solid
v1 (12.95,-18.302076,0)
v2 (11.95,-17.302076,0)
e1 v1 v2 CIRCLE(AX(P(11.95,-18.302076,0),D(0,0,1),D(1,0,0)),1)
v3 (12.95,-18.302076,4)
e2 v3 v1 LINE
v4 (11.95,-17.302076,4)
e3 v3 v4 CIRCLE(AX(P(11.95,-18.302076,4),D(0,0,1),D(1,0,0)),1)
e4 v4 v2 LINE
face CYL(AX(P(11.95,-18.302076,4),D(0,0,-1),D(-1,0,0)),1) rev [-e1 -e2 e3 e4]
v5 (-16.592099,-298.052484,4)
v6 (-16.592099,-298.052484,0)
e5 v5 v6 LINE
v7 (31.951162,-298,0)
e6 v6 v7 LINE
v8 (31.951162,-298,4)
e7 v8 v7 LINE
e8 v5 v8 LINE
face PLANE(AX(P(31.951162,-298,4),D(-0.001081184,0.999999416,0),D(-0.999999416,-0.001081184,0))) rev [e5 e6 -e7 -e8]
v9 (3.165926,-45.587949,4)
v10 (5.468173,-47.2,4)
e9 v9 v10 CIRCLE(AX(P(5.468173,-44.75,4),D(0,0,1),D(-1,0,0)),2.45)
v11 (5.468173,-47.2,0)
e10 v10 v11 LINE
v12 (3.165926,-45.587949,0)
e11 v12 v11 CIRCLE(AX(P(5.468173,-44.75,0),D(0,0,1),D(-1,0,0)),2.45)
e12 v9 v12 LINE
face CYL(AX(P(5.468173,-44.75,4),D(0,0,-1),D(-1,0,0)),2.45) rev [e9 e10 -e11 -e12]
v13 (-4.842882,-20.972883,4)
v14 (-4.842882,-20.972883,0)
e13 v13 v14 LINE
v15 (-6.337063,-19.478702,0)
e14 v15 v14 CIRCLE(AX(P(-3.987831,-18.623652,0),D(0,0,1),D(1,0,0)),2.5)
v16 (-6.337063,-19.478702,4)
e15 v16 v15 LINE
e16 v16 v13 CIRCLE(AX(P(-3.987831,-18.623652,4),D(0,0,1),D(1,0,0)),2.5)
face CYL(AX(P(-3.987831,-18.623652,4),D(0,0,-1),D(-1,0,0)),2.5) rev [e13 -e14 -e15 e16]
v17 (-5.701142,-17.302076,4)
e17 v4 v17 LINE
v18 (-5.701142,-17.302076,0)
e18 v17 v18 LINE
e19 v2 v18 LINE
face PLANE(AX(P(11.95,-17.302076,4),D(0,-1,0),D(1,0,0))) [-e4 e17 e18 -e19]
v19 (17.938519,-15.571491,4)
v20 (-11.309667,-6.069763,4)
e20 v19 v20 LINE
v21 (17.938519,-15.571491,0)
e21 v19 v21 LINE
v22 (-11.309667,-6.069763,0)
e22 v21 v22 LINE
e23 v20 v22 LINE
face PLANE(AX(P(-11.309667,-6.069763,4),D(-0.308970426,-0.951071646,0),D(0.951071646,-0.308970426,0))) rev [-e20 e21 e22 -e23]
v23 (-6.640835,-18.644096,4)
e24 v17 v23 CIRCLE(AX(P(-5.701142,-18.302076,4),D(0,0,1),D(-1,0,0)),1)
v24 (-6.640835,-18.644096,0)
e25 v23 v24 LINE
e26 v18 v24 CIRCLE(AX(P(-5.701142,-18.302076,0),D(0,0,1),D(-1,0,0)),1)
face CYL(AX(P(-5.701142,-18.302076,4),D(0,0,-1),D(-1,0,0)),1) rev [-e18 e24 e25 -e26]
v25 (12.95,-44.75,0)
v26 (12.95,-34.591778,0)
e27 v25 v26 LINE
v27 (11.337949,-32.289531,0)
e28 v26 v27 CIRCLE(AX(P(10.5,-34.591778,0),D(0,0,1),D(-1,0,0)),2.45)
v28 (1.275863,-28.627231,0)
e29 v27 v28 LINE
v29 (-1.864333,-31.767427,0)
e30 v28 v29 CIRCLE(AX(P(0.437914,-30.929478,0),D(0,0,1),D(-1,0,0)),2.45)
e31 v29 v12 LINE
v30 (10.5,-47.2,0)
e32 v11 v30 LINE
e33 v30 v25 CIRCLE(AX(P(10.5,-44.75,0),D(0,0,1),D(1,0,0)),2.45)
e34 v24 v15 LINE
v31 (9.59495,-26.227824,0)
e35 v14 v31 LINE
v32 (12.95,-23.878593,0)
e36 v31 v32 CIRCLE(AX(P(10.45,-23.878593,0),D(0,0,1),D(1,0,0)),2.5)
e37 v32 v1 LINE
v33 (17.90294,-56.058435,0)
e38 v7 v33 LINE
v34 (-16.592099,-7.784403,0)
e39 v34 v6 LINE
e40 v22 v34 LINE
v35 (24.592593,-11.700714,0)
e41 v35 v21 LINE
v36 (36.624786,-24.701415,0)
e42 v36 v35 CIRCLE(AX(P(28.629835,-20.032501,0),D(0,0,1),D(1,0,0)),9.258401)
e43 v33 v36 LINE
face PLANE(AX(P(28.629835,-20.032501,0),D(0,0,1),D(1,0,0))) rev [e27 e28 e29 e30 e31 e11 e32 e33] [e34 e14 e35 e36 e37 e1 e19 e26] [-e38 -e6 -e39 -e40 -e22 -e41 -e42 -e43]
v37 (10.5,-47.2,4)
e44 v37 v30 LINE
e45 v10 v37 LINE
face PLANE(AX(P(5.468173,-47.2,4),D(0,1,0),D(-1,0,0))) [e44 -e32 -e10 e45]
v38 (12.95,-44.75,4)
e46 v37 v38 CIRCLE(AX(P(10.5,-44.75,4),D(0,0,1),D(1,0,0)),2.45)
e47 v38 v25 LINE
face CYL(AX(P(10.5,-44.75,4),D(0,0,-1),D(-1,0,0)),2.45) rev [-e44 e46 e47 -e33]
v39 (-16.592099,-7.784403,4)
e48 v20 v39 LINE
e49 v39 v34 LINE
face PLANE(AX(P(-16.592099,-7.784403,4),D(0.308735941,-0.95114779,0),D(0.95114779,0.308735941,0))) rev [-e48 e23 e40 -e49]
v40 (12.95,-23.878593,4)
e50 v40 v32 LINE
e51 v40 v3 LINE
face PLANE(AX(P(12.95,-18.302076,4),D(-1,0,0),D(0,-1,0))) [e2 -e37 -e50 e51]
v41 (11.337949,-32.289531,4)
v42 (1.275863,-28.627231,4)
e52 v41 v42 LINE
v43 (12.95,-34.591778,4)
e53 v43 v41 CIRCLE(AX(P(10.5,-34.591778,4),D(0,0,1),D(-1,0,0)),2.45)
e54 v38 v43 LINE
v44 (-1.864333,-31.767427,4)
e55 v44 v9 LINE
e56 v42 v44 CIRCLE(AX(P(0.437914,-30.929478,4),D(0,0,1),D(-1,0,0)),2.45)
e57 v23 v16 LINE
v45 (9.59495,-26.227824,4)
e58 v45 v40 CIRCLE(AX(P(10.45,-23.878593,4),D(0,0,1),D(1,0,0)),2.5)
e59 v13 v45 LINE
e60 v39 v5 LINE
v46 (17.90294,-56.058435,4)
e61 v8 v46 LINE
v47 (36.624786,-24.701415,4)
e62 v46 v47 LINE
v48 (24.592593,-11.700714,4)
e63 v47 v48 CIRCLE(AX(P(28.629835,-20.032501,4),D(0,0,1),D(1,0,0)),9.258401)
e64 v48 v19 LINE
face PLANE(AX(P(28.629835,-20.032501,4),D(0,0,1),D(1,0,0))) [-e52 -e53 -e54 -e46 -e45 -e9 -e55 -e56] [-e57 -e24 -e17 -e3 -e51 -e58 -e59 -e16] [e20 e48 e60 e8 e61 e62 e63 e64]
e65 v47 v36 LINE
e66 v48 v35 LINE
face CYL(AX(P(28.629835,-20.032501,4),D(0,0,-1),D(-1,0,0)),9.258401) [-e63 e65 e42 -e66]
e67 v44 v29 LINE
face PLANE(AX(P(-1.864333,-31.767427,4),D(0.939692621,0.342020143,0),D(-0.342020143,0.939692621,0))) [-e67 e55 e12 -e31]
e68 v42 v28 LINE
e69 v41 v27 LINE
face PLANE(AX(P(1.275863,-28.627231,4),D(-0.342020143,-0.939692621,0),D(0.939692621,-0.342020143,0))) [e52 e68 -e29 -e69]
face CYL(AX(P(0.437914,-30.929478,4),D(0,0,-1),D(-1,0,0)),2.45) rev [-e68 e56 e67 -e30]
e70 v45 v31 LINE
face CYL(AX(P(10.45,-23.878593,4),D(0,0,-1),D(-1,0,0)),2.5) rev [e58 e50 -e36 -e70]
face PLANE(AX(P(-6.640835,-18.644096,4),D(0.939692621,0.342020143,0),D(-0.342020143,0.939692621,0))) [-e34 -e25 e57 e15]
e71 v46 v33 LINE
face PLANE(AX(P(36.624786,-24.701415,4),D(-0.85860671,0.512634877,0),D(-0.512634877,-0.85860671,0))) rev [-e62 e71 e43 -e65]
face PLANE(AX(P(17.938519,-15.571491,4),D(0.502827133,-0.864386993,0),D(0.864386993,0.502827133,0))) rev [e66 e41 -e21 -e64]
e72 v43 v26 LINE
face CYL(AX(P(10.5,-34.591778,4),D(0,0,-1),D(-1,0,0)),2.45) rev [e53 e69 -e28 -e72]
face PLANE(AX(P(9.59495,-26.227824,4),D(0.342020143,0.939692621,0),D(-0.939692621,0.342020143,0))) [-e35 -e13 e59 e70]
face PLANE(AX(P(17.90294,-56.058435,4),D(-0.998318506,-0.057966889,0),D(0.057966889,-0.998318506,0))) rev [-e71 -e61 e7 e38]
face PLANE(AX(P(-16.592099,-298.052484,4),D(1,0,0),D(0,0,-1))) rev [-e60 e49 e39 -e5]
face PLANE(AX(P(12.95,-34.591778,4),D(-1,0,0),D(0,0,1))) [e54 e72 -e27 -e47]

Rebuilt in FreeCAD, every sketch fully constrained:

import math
import FreeCAD as App
import Part
import Sketcher
Q = App.Units.Quantity

doc = App.newDocument("Part")
body = doc.addObject("PartDesign::Body", "Body")

# Sketch on XY plane
sketch1 = body.newObject("Sketcher::SketchObject", "Sketch")
sketch1.AttachmentSupport = (doc.getObject("XY_Plane"), [""])
sketch1.MapMode = "FlatFace"
sketch1.addGeometry(Part.LineSegment(App.Vector(17.90294, -56.058435, 0), App.Vector(36.624786, -24.701415, 0)), False)
sketch1.addGeometry(Part.ArcOfCircle(Part.Circle(App.Vector(28.629835, -20.032501, 0), App.Vector(0, 0, 1), 9.258401), math.radians(-30.284191), math.radians(115.852922)), False)
sketch1.addGeometry(Part.LineSegment(App.Vector(24.592593, -11.700714, 0), App.Vector(17.938519, -15.571491, 0)), False)
sketch1.addGeometry(Part.LineSegment(App.Vector(17.938519, -15.571491, 0), App.Vector(-11.309667, -6.069763, 0)), False)
sketch1.addGeometry(Part.LineSegment(App.Vector(-11.309667, -6.069763, 0), App.Vector(-16.592099, -7.784403, 0)), False)
sketch1.addGeometry(Part.LineSegment(App.Vector(-16.592099, -7.784403, 0), App.Vector(-16.592099, -298.052484, 0)), False)
sketch1.addGeometry(Part.LineSegment(App.Vector(-16.592099, -298.052484, 0), App.Vector(31.951162, -298, 0)), False)
sketch1.addGeometry(Part.LineSegment(App.Vector(31.951162, -298, 0), App.Vector(17.90294, -56.058435, 0)), False)
sketch1.addGeometry(Part.ArcOfCircle(Part.Circle(App.Vector(0.437914, -30.929478, 0), App.Vector(0, 0, 1), 2.45), math.radians(70), math.radians(200)), False)
sketch1.addGeometry(Part.LineSegment(App.Vector(1.275863, -28.627231, 0), App.Vector(11.337949, -32.289531, 0)), False)
sketch1.addGeometry(Part.ArcOfCircle(Part.Circle(App.Vector(10.5, -34.591778, 0), App.Vector(0, 0, 1), 2.45), math.radians(0), math.radians(70)), False)
sketch1.addGeometry(Part.LineSegment(App.Vector(12.95, -34.591778, 0), App.Vector(12.95, -44.75, 0)), False)
sketch1.addGeometry(Part.ArcOfCircle(Part.Circle(App.Vector(10.5, -44.75, 0), App.Vector(0, 0, 1), 2.45), math.radians(-90), math.radians(0)), False)
sketch1.addGeometry(Part.LineSegment(App.Vector(10.5, -47.2, 0), App.Vector(5.468173, -47.2, 0)), False)
sketch1.addGeometry(Part.ArcOfCircle(Part.Circle(App.Vector(5.468173, -44.75, 0), App.Vector(0, 0, 1), 2.45), math.radians(-160), math.radians(-90)), False)
sketch1.addGeometry(Part.LineSegment(App.Vector(3.165926, -45.587949, 0), App.Vector(-1.864333, -31.767427, 0)), False)
sketch1.addGeometry(Part.ArcOfCircle(Part.Circle(App.Vector(-5.701142, -18.302076, 0), App.Vector(0, 0, 1), 1), math.radians(90), math.radians(200)), False)
sketch1.addGeometry(Part.LineSegment(App.Vector(-5.701142, -17.302076, 0), App.Vector(11.95, -17.302076, 0)), False)
sketch1.addGeometry(Part.ArcOfCircle(Part.Circle(App.Vector(11.95, -18.302076, 0), App.Vector(0, 0, 1), 1), math.radians(0), math.radians(90)), False)
sketch1.addGeometry(Part.LineSegment(App.Vector(12.95, -18.302076, 0), App.Vector(12.95, -23.878593, 0)), False)
sketch1.addGeometry(Part.ArcOfCircle(Part.Circle(App.Vector(10.45, -23.878593, 0), App.Vector(0, 0, 1), 2.5), math.radians(-110), math.radians(0)), False)
sketch1.addGeometry(Part.LineSegment(App.Vector(9.59495, -26.227824, 0), App.Vector(-4.842882, -20.972883, 0)), False)
sketch1.addGeometry(Part.ArcOfCircle(Part.Circle(App.Vector(-3.987831, -18.623652, 0), App.Vector(0, 0, 1), 2.5), math.radians(-160), math.radians(-110)), False)
sketch1.addGeometry(Part.LineSegment(App.Vector(-6.337063, -19.478702, 0), App.Vector(-6.640835, -18.644096, 0)), False)
sketch1.addConstraint(Sketcher.Constraint("Coincident", 0, 2, 1, 1))
sketch1.addConstraint(Sketcher.Constraint("Coincident", 1, 2, 2, 1))
sketch1.addConstraint(Sketcher.Constraint("Coincident", 2, 2, 3, 1))
sketch1.addConstraint(Sketcher.Constraint("Coincident", 3, 2, 4, 1))
sketch1.addConstraint(Sketcher.Constraint("Coincident", 4, 2, 5, 1))
sketch1.addConstraint(Sketcher.Constraint("Coincident", 5, 2, 6, 1))
sketch1.addConstraint(Sketcher.Constraint("Coincident", 6, 2, 7, 1))
sketch1.addConstraint(Sketcher.Constraint("Coincident", 7, 2, 0, 1))
sketch1.addConstraint(Sketcher.Constraint("Tangent", 8, 1, 9, 1))
sketch1.addConstraint(Sketcher.Constraint("Tangent", 9, 2, 10, 2))
sketch1.addConstraint(Sketcher.Constraint("Tangent", 10, 1, 11, 1))
sketch1.addConstraint(Sketcher.Constraint("Tangent", 11, 2, 12, 2))
sketch1.addConstraint(Sketcher.Constraint("Tangent", 12, 1, 13, 1))
sketch1.addConstraint(Sketcher.Constraint("Tangent", 13, 2, 14, 2))
sketch1.addConstraint(Sketcher.Constraint("Tangent", 14, 1, 15, 1))
sketch1.addConstraint(Sketcher.Constraint("Tangent", 15, 2, 8, 2))
sketch1.addConstraint(Sketcher.Constraint("Tangent", 16, 1, 17, 1))
sketch1.addConstraint(Sketcher.Constraint("Tangent", 17, 2, 18, 2))
sketch1.addConstraint(Sketcher.Constraint("Tangent", 18, 1, 19, 1))
sketch1.addConstraint(Sketcher.Constraint("Tangent", 19, 2, 20, 2))
sketch1.addConstraint(Sketcher.Constraint("Tangent", 20, 1, 21, 1))
sketch1.addConstraint(Sketcher.Constraint("Tangent", 21, 2, 22, 2))
sketch1.addConstraint(Sketcher.Constraint("Tangent", 22, 1, 23, 1))
sketch1.addConstraint(Sketcher.Constraint("Tangent", 23, 2, 16, 2))
sketch1.addConstraint(Sketcher.Constraint("Vertical", 5))
sketch1.addConstraint(Sketcher.Constraint("Vertical", 11))
sketch1.addConstraint(Sketcher.Constraint("Horizontal", 13))
sketch1.addConstraint(Sketcher.Constraint("Horizontal", 17))
sketch1.addConstraint(Sketcher.Constraint("Vertical", 19))
sketch1.addConstraint(Sketcher.Constraint("Equal", 8, 10))
sketch1.addConstraint(Sketcher.Constraint("Equal", 10, 12))
sketch1.addConstraint(Sketcher.Constraint("Equal", 12, 14))
sketch1.addConstraint(Sketcher.Constraint("Equal", 16, 18))
sketch1.addConstraint(Sketcher.Constraint("Equal", 20, 22))
sketch1.addConstraint(Sketcher.Constraint("Parallel", 9, 21))
sketch1.addConstraint(Sketcher.Constraint("Parallel", 15, 23))
sketch1.addConstraint(Sketcher.Constraint("Vertical", 11, 2, 18, 1))
sketch1.addConstraint(Sketcher.Constraint("Radius", 16, Q("1 mm")))
sketch1.addConstraint(Sketcher.Constraint("Radius", 20, Q("2.5 mm")))
sketch1.addConstraint(Sketcher.Constraint("Angle", 9, Q("-20 deg")))
sketch1.addConstraint(Sketcher.Constraint("Angle", 15, Q("110 deg")))
sketch1.addConstraint(Sketcher.Constraint("Radius", 8, Q("2.45 mm")))
sketch1.addConstraint(Sketcher.Constraint("DistanceY", 6, 2, -1, 1, Q("298 mm")))
sketch1.addConstraint(Sketcher.Constraint("DistanceX", -1, 1, 10, 3, Q("10.5 mm")))
sketch1.addConstraint(Sketcher.Constraint("DistanceY", 12, 1, -1, 1, Q("47.2 mm")))
sketch1.addConstraint(Sketcher.Constraint("Radius", 1, Q("9.258401 mm")))
sketch1.addConstraint(Sketcher.Constraint("DistanceY", 5, 2, 5, 1, Q("290.268081 mm")))
sketch1.addConstraint(Sketcher.Constraint("DistanceY", 1, 3, -1, 1, Q("20.032501 mm")))
sketch1.addConstraint(Sketcher.Constraint("DistanceX", 4, 2, -1, 1, Q("16.592099 mm")))
sketch1.addConstraint(Sketcher.Constraint("DistanceY", 10, 3, 8, 3, Q("3.6623 mm")))
sketch1.addConstraint(Sketcher.Constraint("DistanceY", 10, 3, 16, 3, Q("16.289702 mm")))
sketch1.addConstraint(Sketcher.Constraint("DistanceY", 0, 2, 1, 2, Q("13.0007 mm")))
sketch1.addConstraint(Sketcher.Constraint("DistanceY", 20, 3, 2, 2, Q("8.307101 mm")))
sketch1.addConstraint(Sketcher.Constraint("DistanceX", 22, 3, 15, 2, Q("2.123499 mm")))
sketch1.addConstraint(Sketcher.Constraint("Distance", 0, Q("36.520819 mm")))
sketch1.addConstraint(Sketcher.Constraint("Distance", 6, Q("48.543289 mm")))
sketch1.addConstraint(Sketcher.Constraint("Distance", 23, Q("0.888169 mm")))
sketch1.addConstraint(Sketcher.Constraint("DistanceX", 13, 2, 13, 1, Q("5.031827 mm")))
sketch1.addConstraint(Sketcher.Constraint("DistanceX", -1, 1, 2, 2, Q("17.938519 mm")))
sketch1.addConstraint(Sketcher.Constraint("DistanceX", -1, 1, 7, 2, Q("17.90294 mm")))
sketch1.addConstraint(Sketcher.Constraint("DistanceX", 8, 3, 1, 3, Q("28.191921 mm")))
sketch1.addConstraint(Sketcher.Constraint("DistanceX", 1, 3, 0, 2, Q("7.994951 mm")))
sketch1.addConstraint(Sketcher.Constraint("DistanceY", 22, 3, 3, 2, Q("12.553889 mm")))
sketch1.addConstraint(Sketcher.Constraint("DistanceX", 3, 2, 8, 3, Q("11.747581 mm")))
sketch1.addConstraint(Sketcher.Constraint("DistanceY", 4, 2, 3, 2, Q("1.714641 mm")))
pad1 = body.newObject("PartDesign::Pad", "Pad")
pad1.Profile = sketch1
pad1.Length = 4

doc.recompute()
